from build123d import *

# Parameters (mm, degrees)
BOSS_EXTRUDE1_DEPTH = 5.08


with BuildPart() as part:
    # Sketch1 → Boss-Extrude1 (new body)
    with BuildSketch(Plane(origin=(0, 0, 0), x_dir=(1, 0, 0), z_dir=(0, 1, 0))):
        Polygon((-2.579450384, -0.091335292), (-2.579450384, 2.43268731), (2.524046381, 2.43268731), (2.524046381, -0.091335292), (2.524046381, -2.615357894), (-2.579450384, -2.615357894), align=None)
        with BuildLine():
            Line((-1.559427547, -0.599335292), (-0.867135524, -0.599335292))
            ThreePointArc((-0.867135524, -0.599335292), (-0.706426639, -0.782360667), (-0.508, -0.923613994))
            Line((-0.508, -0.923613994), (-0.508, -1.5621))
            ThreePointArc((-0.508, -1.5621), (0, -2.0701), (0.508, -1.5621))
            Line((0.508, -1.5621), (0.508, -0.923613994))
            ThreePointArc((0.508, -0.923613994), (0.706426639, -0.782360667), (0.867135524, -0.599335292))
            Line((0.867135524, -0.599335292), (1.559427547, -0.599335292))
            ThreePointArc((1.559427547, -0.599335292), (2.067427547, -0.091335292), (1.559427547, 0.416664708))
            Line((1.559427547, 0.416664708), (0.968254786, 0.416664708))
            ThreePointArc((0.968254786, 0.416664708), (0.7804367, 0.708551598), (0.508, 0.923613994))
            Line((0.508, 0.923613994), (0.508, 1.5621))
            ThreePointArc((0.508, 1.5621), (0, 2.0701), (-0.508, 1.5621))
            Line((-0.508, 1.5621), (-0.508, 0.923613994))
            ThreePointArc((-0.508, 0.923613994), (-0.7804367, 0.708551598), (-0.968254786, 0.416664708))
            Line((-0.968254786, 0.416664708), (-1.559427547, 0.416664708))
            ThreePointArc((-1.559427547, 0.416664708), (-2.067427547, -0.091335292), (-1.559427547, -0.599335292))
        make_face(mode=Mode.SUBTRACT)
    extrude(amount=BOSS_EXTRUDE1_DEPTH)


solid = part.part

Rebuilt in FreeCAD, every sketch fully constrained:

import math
import FreeCAD as App
import Part
import Sketcher

V = App.Vector
Q = App.Units.Quantity


def add_polygon(sketch, points):
    """Adds a closed chain of lines whose ends are joined by coincident constraints."""
    first, n = sketch.GeometryCount, len(points)
    for a, b in zip(points, points[1:] + points[:1]):
        sketch.addGeometry(Part.LineSegment(App.Vector(*a, 0), App.Vector(*b, 0)), False)
    for i in range(n):
        sketch.addConstraint(Sketcher.Constraint("Coincident", first + i, 2, first + (i + 1) % n, 1))

doc = App.newDocument("Part")
params = doc.addObject("Spreadsheet::Sheet", "Params")
for row, (alias, value) in enumerate([
    ("sketch1_radius", "0.02 in"),
    ("pad1_length", "0.2 in"),
], start=1):
    params.set(f"A{row}", alias)
    params.set(f"B{row}", "=" + value)
    params.setAlias(f"B{row}", alias)

body = doc.addObject("PartDesign::Body", "Body")

# Sketch on XZ plane
sketch1 = body.newObject("Sketcher::SketchObject", "Sketch")
sketch1.AttachmentSupport = (doc.getObject("XZ_Plane"), [""])
sketch1.MapMode = "FlatFace"
add_polygon(sketch1, [(-2.58, -2.43), (-2.58, 2.62), (2.52, 2.62), (2.52, -2.43)])  # lines 0-3
sketch1.addGeometry(Part.ArcOfCircle(Part.Circle(V(-1.56, 0.09, 0), V(0, 0, 1), 0.51), math.radians(90), math.radians(270)), False)  # 4
sketch1.addGeometry(Part.LineSegment(V(-1.56, -0.42, 0), V(-0.97, -0.42, 0)), False)  # 5
sketch1.addGeometry(Part.ArcOfCircle(Part.Circle(V(0, 0, 0), V(0, 0, 1), 1.05), math.radians(-157), math.radians(-119)), False)  # 6
sketch1.addGeometry(Part.LineSegment(V(-0.51, -0.92, 0), V(-0.51, -1.56, 0)), False)  # 7
sketch1.addGeometry(Part.ArcOfCircle(Part.Circle(V(0, -1.56, 0), V(0, 0, 1), 0.51), math.radians(180), math.radians(360)), False)  # 8
sketch1.addGeometry(Part.LineSegment(V(0.51, -1.56, 0), V(0.51, -0.92, 0)), False)  # 9
sketch1.addGeometry(Part.ArcOfCircle(Part.Circle(V(0, 0, 0), V(0, 0, 1), 1.05), math.radians(-61), math.radians(-23)), False)  # 10
sketch1.addGeometry(Part.LineSegment(V(0.97, -0.42, 0), V(1.56, -0.42, 0)), False)  # 11
sketch1.addGeometry(Part.ArcOfCircle(Part.Circle(V(1.56, 0.09, 0), V(0, 0, 1), 0.51), math.radians(-90), math.radians(90)), False)  # 12
sketch1.addGeometry(Part.LineSegment(V(1.56, 0.6, 0), V(0.87, 0.6, 0)), False)  # 13
sketch1.addGeometry(Part.ArcOfCircle(Part.Circle(V(0, 0, 0), V(0, 0, 1), 1.05), math.radians(35), math.radians(61)), False)  # 14
sketch1.addGeometry(Part.LineSegment(V(0.51, 0.92, 0), V(0.51, 1.56, 0)), False)  # 15
sketch1.addGeometry(Part.ArcOfCircle(Part.Circle(V(0, 1.56, 0), V(0, 0, 1), 0.51), math.radians(0), math.radians(180)), False)  # 16
sketch1.addGeometry(Part.LineSegment(V(-0.51, 1.56, 0), V(-0.51, 0.92, 0)), False)  # 17
sketch1.addGeometry(Part.ArcOfCircle(Part.Circle(V(0, 0, 0), V(0, 0, 1), 1.05), math.radians(119), math.radians(145)), False)  # 18
sketch1.addGeometry(Part.LineSegment(V(-0.87, 0.6, 0), V(-1.56, 0.6, 0)), False)  # 19
sketch1.addConstraint(Sketcher.Constraint("Tangent", 4, 2, 5, 1))
sketch1.addConstraint(Sketcher.Constraint("Coincident", 5, 2, 6, 1))
sketch1.addConstraint(Sketcher.Constraint("Coincident", 6, 2, 7, 1))
sketch1.addConstraint(Sketcher.Constraint("Tangent", 7, 2, 8, 1))
sketch1.addConstraint(Sketcher.Constraint("Tangent", 8, 2, 9, 1))
sketch1.addConstraint(Sketcher.Constraint("Coincident", 9, 2, 10, 1))
sketch1.addConstraint(Sketcher.Constraint("Coincident", 10, 2, 11, 1))
sketch1.addConstraint(Sketcher.Constraint("Tangent", 11, 2, 12, 1))
sketch1.addConstraint(Sketcher.Constraint("Tangent", 12, 2, 13, 1))
sketch1.addConstraint(Sketcher.Constraint("Coincident", 13, 2, 14, 1))
sketch1.addConstraint(Sketcher.Constraint("Coincident", 14, 2, 15, 1))
sketch1.addConstraint(Sketcher.Constraint("Tangent", 15, 2, 16, 1))
sketch1.addConstraint(Sketcher.Constraint("Tangent", 16, 2, 17, 1))
sketch1.addConstraint(Sketcher.Constraint("Coincident", 17, 2, 18, 1))
sketch1.addConstraint(Sketcher.Constraint("Coincident", 18, 2, 19, 1))
sketch1.addConstraint(Sketcher.Constraint("Tangent", 19, 2, 4, 1))
sketch1.addConstraint(Sketcher.Constraint("Vertical", 0))
sketch1.addConstraint(Sketcher.Constraint("Horizontal", 1))
sketch1.addConstraint(Sketcher.Constraint("Vertical", 2))
sketch1.addConstraint(Sketcher.Constraint("Horizontal", 3))
sketch1.addConstraint(Sketcher.Constraint("Horizontal", 5))
sketch1.addConstraint(Sketcher.Constraint("Vertical", 7))
sketch1.addConstraint(Sketcher.Constraint("Vertical", 9))
sketch1.addConstraint(Sketcher.Constraint("Horizontal", 11))
sketch1.addConstraint(Sketcher.Constraint("Horizontal", 13))
sketch1.addConstraint(Sketcher.Constraint("Vertical", 15))
sketch1.addConstraint(Sketcher.Constraint("Vertical", 17))
sketch1.addConstraint(Sketcher.Constraint("Horizontal", 19))
sketch1.addConstraint(Sketcher.Constraint("Coincident", 6, 3, -1, 1))
sketch1.addConstraint(Sketcher.Constraint("Coincident", 10, 3, -1, 1))
sketch1.addConstraint(Sketcher.Constraint("Coincident", 14, 3, -1, 1))
sketch1.addConstraint(Sketcher.Constraint("Coincident", 18, 3, -1, 1))
sketch1.addConstraint(Sketcher.Constraint("Equal", 4, 8))
sketch1.addConstraint(Sketcher.Constraint("Equal", 6, 10))
sketch1.addConstraint(Sketcher.Constraint("Equal", 8, 12))
sketch1.addConstraint(Sketcher.Constraint("Equal", 10, 14))
sketch1.addConstraint(Sketcher.Constraint("Equal", 12, 16))
sketch1.addConstraint(Sketcher.Constraint("Equal", 14, 18))
sketch1.addConstraint(Sketcher.Constraint("Symmetric", 8, 3, 16, 3, -1, 1))
sketch1.addConstraint(Sketcher.Constraint("Symmetric", 4, 3, 12, 3, -2))
sketch1.addConstraint(Sketcher.Constraint("PointOnObject", 8, 3, -2))
sketch1.addConstraint(Sketcher.Constraint("Radius", 4, Q("0.02 in")))
sketch1.addConstraint(Sketcher.Constraint("Radius", 6, Q("0.0415 in")))
sketch1.addConstraint(Sketcher.Constraint("DistanceY", 8, 3, -1, 1, Q("0.0615 in")))
sketch1.addConstraint(Sketcher.Constraint("DistanceX", 1, 1, 1, 2, Q("5.103497 mm")))
sketch1.addConstraint(Sketcher.Constraint("DistanceX", 5, 1, 5, 2, Q("0.591173 mm")))
sketch1.addConstraint(Sketcher.Constraint("DistanceX", 13, 2, 13, 1, Q("0.692292 mm")))
sketch1.addConstraint(Sketcher.Constraint("DistanceY", 0, 1, 0, 2, Q("5.048045 mm")))
sketch1.addConstraint(Sketcher.Constraint("DistanceX", 0, 2, -1, 1, Q("2.57945 mm")))
sketch1.addConstraint(Sketcher.Constraint("DistanceY", -1, 1, 0, 2, Q("2.615358 mm")))
sketch1.setExpression("Constraints[45]", "Params.sketch1_radius")
pad1 = body.newObject("PartDesign::Pad", "Pad")
pad1.Profile = sketch1
pad1.setExpression("Length", "Params.pad1_length")
pad1.Reversed = True

doc.recompute()
